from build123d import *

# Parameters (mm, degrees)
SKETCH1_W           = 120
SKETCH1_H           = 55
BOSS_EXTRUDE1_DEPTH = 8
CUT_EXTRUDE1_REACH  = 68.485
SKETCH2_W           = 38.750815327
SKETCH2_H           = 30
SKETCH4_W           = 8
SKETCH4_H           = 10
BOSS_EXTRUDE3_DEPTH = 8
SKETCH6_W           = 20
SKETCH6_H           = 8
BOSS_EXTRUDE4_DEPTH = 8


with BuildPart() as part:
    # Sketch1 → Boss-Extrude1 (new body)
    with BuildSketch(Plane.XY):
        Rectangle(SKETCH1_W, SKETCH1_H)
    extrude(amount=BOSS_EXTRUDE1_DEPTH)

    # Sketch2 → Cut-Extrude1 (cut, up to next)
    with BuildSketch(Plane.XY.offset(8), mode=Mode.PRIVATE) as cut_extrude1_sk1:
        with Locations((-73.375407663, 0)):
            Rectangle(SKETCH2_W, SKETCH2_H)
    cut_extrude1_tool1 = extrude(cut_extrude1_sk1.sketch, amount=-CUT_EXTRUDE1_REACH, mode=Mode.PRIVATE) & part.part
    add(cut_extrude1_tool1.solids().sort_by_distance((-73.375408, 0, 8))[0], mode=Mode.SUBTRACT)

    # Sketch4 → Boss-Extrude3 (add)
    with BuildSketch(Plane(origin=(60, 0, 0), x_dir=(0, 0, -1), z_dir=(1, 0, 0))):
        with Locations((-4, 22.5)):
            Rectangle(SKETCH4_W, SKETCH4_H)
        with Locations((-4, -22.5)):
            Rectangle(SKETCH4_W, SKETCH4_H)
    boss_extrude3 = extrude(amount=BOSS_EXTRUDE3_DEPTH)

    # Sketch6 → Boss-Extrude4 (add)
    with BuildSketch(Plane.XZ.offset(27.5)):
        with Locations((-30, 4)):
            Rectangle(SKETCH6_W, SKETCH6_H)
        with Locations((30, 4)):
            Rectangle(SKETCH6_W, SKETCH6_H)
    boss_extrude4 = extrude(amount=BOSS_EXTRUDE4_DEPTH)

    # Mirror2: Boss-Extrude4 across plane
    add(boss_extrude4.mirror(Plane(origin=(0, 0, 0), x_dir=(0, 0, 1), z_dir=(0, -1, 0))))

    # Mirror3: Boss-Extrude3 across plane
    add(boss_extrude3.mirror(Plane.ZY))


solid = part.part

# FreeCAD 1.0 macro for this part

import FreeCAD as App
import Part
import Sketcher

doc = App.newDocument("Part")
body = doc.addObject("PartDesign::Body", "Body")

sketch1 = body.newObject("Sketcher::SketchObject", "Sketch")
sketch1.AttachmentSupport = (doc.getObject("XY_Plane"), [""])
sketch1.MapMode = "FlatFace"
sketch1.addGeometry([
    Part.LineSegment(App.Vector(-60, 28, 0), App.Vector(-60, -28, 0)),
    Part.LineSegment(App.Vector(-60, -28, 0), App.Vector(60, -28, 0)),
    Part.LineSegment(App.Vector(60, -28, 0), App.Vector(60, 28, 0)),
    Part.LineSegment(App.Vector(60, 28, 0), App.Vector(-60, 28, 0)),
], False)
sketch1.addConstraint([
    Sketcher.Constraint("Coincident", 0, 2, 1, 1),
    Sketcher.Constraint("Coincident", 1, 2, 2, 1),
    Sketcher.Constraint("Coincident", 2, 2, 3, 1),
    Sketcher.Constraint("Coincident", 3, 2, 0, 1),
    Sketcher.Constraint("Vertical", 0),
    Sketcher.Constraint("Horizontal", 1),
    Sketcher.Constraint("Vertical", 2),
    Sketcher.Constraint("Horizontal", 3),
    Sketcher.Constraint("Symmetric", 0, 2, 2, 2, -1, 1),
    Sketcher.Constraint("DistanceX", 1, 1, 1, 2, 120.0),
    Sketcher.Constraint("DistanceY", 0, 2, 0, 1, 55.0),
])
pad1 = body.newObject("PartDesign::Pad", "Pad")
pad1.Profile = sketch1
pad1.Length = 8

sketch2 = body.newObject("Sketcher::SketchObject", "Sketch001")
sketch2.AttachmentSupport = (doc.getObject("XY_Plane"), [""])
sketch2.MapMode = "FlatFace"
sketch2.AttachmentOffset = App.Placement(App.Vector(0, 0, 8), App.Rotation())
sketch2.addGeometry([
    Part.LineSegment(App.Vector(-93, 15, 0), App.Vector(-93, -15, 0)),
    Part.LineSegment(App.Vector(-93, -15, 0), App.Vector(-54, -15, 0)),
    Part.LineSegment(App.Vector(-54, -15, 0), App.Vector(-54, 15, 0)),
    Part.LineSegment(App.Vector(-54, 15, 0), App.Vector(-93, 15, 0)),
], False)
sketch2.addConstraint([
    Sketcher.Constraint("Coincident", 0, 2, 1, 1),
    Sketcher.Constraint("Coincident", 1, 2, 2, 1),
    Sketcher.Constraint("Coincident", 2, 2, 3, 1),
    Sketcher.Constraint("Coincident", 3, 2, 0, 1),
    Sketcher.Constraint("Vertical", 0),
    Sketcher.Constraint("Horizontal", 1),
    Sketcher.Constraint("Vertical", 2),
    Sketcher.Constraint("Horizontal", 3),
    Sketcher.Constraint("DistanceY", 0, 2, 0, 1, 30.0),
    Sketcher.Constraint("DistanceY", 0, 2, -1, 1, 15.0),
    Sketcher.Constraint("DistanceX", 1, 2, -1, 1, 54.0),
    Sketcher.Constraint("DistanceX", 1, 1, 1, 2, 38.750815),
])
pocket1 = body.newObject("PartDesign::Pocket", "Pocket")
pocket1.Profile = sketch2
pocket1.Length = 8

sketch3 = body.newObject("Sketcher::SketchObject", "Sketch002")
sketch3.AttachmentSupport = (doc.getObject("YZ_Plane"), [""])
sketch3.MapMode = "FlatFace"
sketch3.AttachmentOffset = App.Placement(App.Vector(0, 0, 60), App.Rotation())
sketch3.addGeometry([
    Part.LineSegment(App.Vector(28, 8, 0), App.Vector(18, 8, 0)),
    Part.LineSegment(App.Vector(18, 8, 0), App.Vector(18, 0, 0)),
    Part.LineSegment(App.Vector(18, 0, 0), App.Vector(28, 0, 0)),
    Part.LineSegment(App.Vector(28, 0, 0), App.Vector(28, 8, 0)),
    Part.LineSegment(App.Vector(-18, 8, 0), App.Vector(-28, 8, 0)),
    Part.LineSegment(App.Vector(-28, 8, 0), App.Vector(-28, 0, 0)),
    Part.LineSegment(App.Vector(-28, 0, 0), App.Vector(-18, 0, 0)),
    Part.LineSegment(App.Vector(-18, 0, 0), App.Vector(-18, 8, 0)),
], False)
sketch3.addConstraint([
    Sketcher.Constraint("Coincident", 0, 2, 1, 1),
    Sketcher.Constraint("Coincident", 1, 2, 2, 1),
    Sketcher.Constraint("Coincident", 2, 2, 3, 1),
    Sketcher.Constraint("Coincident", 3, 2, 0, 1),
    Sketcher.Constraint("Coincident", 4, 2, 5, 1),
    Sketcher.Constraint("Coincident", 5, 2, 6, 1),
    Sketcher.Constraint("Coincident", 6, 2, 7, 1),
    Sketcher.Constraint("Coincident", 7, 2, 4, 1),
    Sketcher.Constraint("Horizontal", 0),
    Sketcher.Constraint("Vertical", 1),
    Sketcher.Constraint("Horizontal", 2),
    Sketcher.Constraint("Vertical", 3),
    Sketcher.Constraint("Horizontal", 4),
    Sketcher.Constraint("Vertical", 5),
    Sketcher.Constraint("Horizontal", 6),
    Sketcher.Constraint("Vertical", 7),
    Sketcher.Constraint("Symmetric", 2, 2, 5, 2, -1, 1),
    Sketcher.Constraint("Symmetric", 1, 2, 6, 2, -2),
    Sketcher.Constraint("Horizontal", 3, 2, 4, 2),
    Sketcher.Constraint("DistanceX", 0, 2, 0, 1, 10.0),
    Sketcher.Constraint("DistanceY", 1, 2, 1, 1, 8.0),
    Sketcher.Constraint("DistanceX", 4, 2, 0, 2, 45.0),
])
pad2 = body.newObject("PartDesign::Pad", "Pad001")
pad2.Profile = sketch3
pad2.Length = 8

sketch4 = body.newObject("Sketcher::SketchObject", "Sketch003")
sketch4.AttachmentSupport = (doc.getObject("XZ_Plane"), [""])
sketch4.MapMode = "FlatFace"
sketch4.AttachmentOffset = App.Placement(App.Vector(0, 0, 27.5), App.Rotation())
sketch4.addGeometry([
    Part.LineSegment(App.Vector(-40, 8, 0), App.Vector(-40, 0, 0)),
    Part.LineSegment(App.Vector(-40, 0, 0), App.Vector(-20, 0, 0)),
    Part.LineSegment(App.Vector(-20, 0, 0), App.Vector(-20, 8, 0)),
    Part.LineSegment(App.Vector(-20, 8, 0), App.Vector(-40, 8, 0)),
    Part.LineSegment(App.Vector(20, 8, 0), App.Vector(20, 0, 0)),
    Part.LineSegment(App.Vector(20, 0, 0), App.Vector(40, 0, 0)),
    Part.LineSegment(App.Vector(40, 0, 0), App.Vector(40, 8, 0)),
    Part.LineSegment(App.Vector(40, 8, 0), App.Vector(20, 8, 0)),
], False)
sketch4.addConstraint([
    Sketcher.Constraint("Coincident", 0, 2, 1, 1),
    Sketcher.Constraint("Coincident", 1, 2, 2, 1),
    Sketcher.Constraint("Coincident", 2, 2, 3, 1),
    Sketcher.Constraint("Coincident", 3, 2, 0, 1),
    Sketcher.Constraint("Coincident", 4, 2, 5, 1),
    Sketcher.Constraint("Coincident", 5, 2, 6, 1),
    Sketcher.Constraint("Coincident", 6, 2, 7, 1),
    Sketcher.Constraint("Coincident", 7, 2, 4, 1),
    Sketcher.Constraint("Vertical", 0),
    Sketcher.Constraint("Horizontal", 1),
    Sketcher.Constraint("Vertical", 2),
    Sketcher.Constraint("Horizontal", 3),
    Sketcher.Constraint("Vertical", 4),
    Sketcher.Constraint("Horizontal", 5),
    Sketcher.Constraint("Vertical", 6),
    Sketcher.Constraint("Horizontal", 7),
    Sketcher.Constraint("Symmetric", 1, 2, 4, 2, -1, 1),
    Sketcher.Constraint("Symmetric", 0, 2, 5, 2, -2),
    Sketcher.Constraint("Horizontal", 3, 2, 6, 2),
    Sketcher.Constraint("DistanceX", 1, 1, 1, 2, 20.0),
    Sketcher.Constraint("DistanceY", 0, 2, 0, 1, 8.0),
    Sketcher.Constraint("DistanceX", 0, 2, -1, 1, 40.0),
])
pad3 = body.newObject("PartDesign::Pad", "Pad002")
pad3.Profile = sketch4
pad3.Length = 8
doc.recompute()

mirrored = body.newObject("PartDesign::Mirrored", "Mirrored")
mirrored.Originals = [pad3]
mirrored.MirrorPlane = (doc.getObject("XZ_Plane"), [""])
body.Tip = mirrored
doc.recompute()

mirrored2 = body.newObject("PartDesign::Mirrored", "Mirrored001")
mirrored2.Originals = [pad2]
mirrored2.MirrorPlane = (doc.getObject("YZ_Plane"), [""])
body.Tip = mirrored2

doc.recompute()
